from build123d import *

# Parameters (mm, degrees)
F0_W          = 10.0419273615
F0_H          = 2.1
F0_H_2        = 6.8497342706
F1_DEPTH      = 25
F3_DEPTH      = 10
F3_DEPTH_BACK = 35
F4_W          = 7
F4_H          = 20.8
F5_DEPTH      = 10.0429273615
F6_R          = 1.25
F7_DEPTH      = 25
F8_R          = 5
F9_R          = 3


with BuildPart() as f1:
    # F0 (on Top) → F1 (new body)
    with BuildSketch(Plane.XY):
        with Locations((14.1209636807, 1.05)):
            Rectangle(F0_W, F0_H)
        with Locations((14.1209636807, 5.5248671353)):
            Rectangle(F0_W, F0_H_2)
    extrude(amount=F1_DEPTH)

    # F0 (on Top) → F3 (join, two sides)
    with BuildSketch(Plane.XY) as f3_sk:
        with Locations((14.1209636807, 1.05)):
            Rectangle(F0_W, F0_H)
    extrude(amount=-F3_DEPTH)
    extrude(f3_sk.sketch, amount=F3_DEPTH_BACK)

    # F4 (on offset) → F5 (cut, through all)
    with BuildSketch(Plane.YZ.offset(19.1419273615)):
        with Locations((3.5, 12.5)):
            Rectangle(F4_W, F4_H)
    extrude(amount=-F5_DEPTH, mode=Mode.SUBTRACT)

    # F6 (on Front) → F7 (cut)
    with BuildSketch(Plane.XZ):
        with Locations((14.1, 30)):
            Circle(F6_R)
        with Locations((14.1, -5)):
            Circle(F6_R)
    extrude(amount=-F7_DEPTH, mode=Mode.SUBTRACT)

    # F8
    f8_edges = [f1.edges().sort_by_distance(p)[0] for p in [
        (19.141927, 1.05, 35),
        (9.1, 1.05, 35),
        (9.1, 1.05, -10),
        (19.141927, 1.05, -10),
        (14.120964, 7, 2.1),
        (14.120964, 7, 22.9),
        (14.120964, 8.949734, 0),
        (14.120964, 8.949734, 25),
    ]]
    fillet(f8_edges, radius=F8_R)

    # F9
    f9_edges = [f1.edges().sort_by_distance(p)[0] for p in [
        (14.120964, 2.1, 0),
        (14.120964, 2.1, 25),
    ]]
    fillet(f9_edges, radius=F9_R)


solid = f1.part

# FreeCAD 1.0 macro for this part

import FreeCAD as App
import Part
import Sketcher

V = App.Vector


def edges_at(feature, points):
    """Names of the edges that pass closest to the given points."""
    edges = feature.Shape.Edges
    near = lambda p: min(range(len(edges)), key=lambda i: edges[i].distToShape(Part.Vertex(*p))[0])
    return sorted({f"Edge{near(p) + 1}" for p in points})


def add_polygon(sketch, points):
    """Adds a closed chain of lines whose ends are joined by coincident constraints."""
    first, n = sketch.GeometryCount, len(points)
    for a, b in zip(points, points[1:] + points[:1]):
        sketch.addGeometry(Part.LineSegment(App.Vector(*a, 0), App.Vector(*b, 0)), False)
    for i in range(n):
        sketch.addConstraint(Sketcher.Constraint("Coincident", first + i, 2, first + (i + 1) % n, 1))

doc = App.newDocument("Part")
body = doc.addObject("PartDesign::Body", "Body")

sketch1 = doc.addObject("Sketcher::SketchObject", "Sketch")
body.addObject(sketch1)
sketch1.AttachmentSupport = (doc.XY_Plane, [""])
sketch1.MapMode = "FlatFace"
add_polygon(sketch1, [(9, 0), (19, 0), (19, 9), (9, 9)])
sketch1.addConstraint(Sketcher.Constraint("Horizontal", 0))
sketch1.addConstraint(Sketcher.Constraint("Vertical", 1))
sketch1.addConstraint(Sketcher.Constraint("Horizontal", 2))
sketch1.addConstraint(Sketcher.Constraint("Vertical", 3))
sketch1.addConstraint(Sketcher.Constraint("PointOnObject", 0, 2, -1))
sketch1.addConstraint(Sketcher.Constraint("DistanceX", -1, 1, 2, 2, 9.1))
sketch1.addConstraint(Sketcher.Constraint("DistanceX", 0, 1, 0, 2, 10.041927))
sketch1.addConstraint(Sketcher.Constraint("DistanceY", 1, 1, 1, 2, 8.949734))
pad1 = doc.addObject("PartDesign::Pad", "Pad")
body.addObject(pad1)
pad1.Profile = sketch1
pad1.Length = 25

sketch2 = doc.addObject("Sketcher::SketchObject", "Sketch001")
body.addObject(sketch2)
sketch2.AttachmentSupport = (doc.XY_Plane, [""])
sketch2.MapMode = "FlatFace"
add_polygon(sketch2, [(9.1, 2.1), (9.1, 0), (19.1, 0), (19.1, 2.1)])
sketch2.addConstraint(Sketcher.Constraint("Vertical", 0))
sketch2.addConstraint(Sketcher.Constraint("Horizontal", 1))
sketch2.addConstraint(Sketcher.Constraint("Vertical", 2))
sketch2.addConstraint(Sketcher.Constraint("Horizontal", 3))
sketch2.addConstraint(Sketcher.Constraint("PointOnObject", 0, 2, -1))
sketch2.addConstraint(Sketcher.Constraint("DistanceY", 0, 2, 0, 1, 2.1))
sketch2.addConstraint(Sketcher.Constraint("DistanceX", -1, 1, 0, 2, 9.1))
sketch2.addConstraint(Sketcher.Constraint("DistanceX", 1, 1, 1, 2, 10.041927))
pad2 = doc.addObject("PartDesign::Pad", "Pad001")
body.addObject(pad2)
pad2.Profile = sketch2
pad2.Type = "TwoLengths"
pad2.Length = 10
pad2.Length2 = 35
pad2.Reversed = True

sketch3 = doc.addObject("Sketcher::SketchObject", "Sketch002")
body.addObject(sketch3)
sketch3.AttachmentSupport = (doc.YZ_Plane, [""])
sketch3.MapMode = "FlatFace"
sketch3.AttachmentOffset = App.Placement(V(0, 0, 19.141927), App.Rotation())
add_polygon(sketch3, [(0, 23), (0, 2), (7, 2), (7, 23)])
sketch3.addConstraint(Sketcher.Constraint("Vertical", 0))
sketch3.addConstraint(Sketcher.Constraint("Horizontal", 1))
sketch3.addConstraint(Sketcher.Constraint("Vertical", 2))
sketch3.addConstraint(Sketcher.Constraint("Horizontal", 3))
sketch3.addConstraint(Sketcher.Constraint("PointOnObject", 0, 2, -2))
sketch3.addConstraint(Sketcher.Constraint("DistanceX", 1, 1, 1, 2, 7.0))
sketch3.addConstraint(Sketcher.Constraint("DistanceY", 0, 2, 0, 1, 20.8))
sketch3.addConstraint(Sketcher.Constraint("DistanceY", -1, 1, 0, 2, 2.1))
pocket1 = doc.addObject("PartDesign::Pocket", "Pocket")
body.addObject(pocket1)
pocket1.Profile = sketch3
pocket1.Type = "ThroughAll"

sketch4 = doc.addObject("Sketcher::SketchObject", "Sketch003")
body.addObject(sketch4)
sketch4.AttachmentSupport = (doc.XZ_Plane, [""])
sketch4.MapMode = "FlatFace"
sketch4.addGeometry(Part.Circle(V(14.1, 30, 0), V(0, 0, 1), 1.2), False)
sketch4.addGeometry(Part.Circle(V(14.1, -5, 0), V(0, 0, 1), 1.2), False)
sketch4.addConstraint(Sketcher.Constraint("Equal", 0, 1))
sketch4.addConstraint(Sketcher.Constraint("Vertical", 0, 3, 1, 3))
sketch4.addConstraint(Sketcher.Constraint("Diameter", 0, 2.5))
sketch4.addConstraint(Sketcher.Constraint("DistanceY", -1, 1, 0, 3, 30.0))
sketch4.addConstraint(Sketcher.Constraint("DistanceY", 1, 3, -1, 1, 5.0))
sketch4.addConstraint(Sketcher.Constraint("DistanceX", -1, 1, 0, 3, 14.1))
pocket2 = doc.addObject("PartDesign::Pocket", "Pocket001")
body.addObject(pocket2)
pocket2.Profile = sketch4
pocket2.Length = 25
doc.recompute()

fillet = doc.addObject("PartDesign::Fillet", "Fillet")
body.addObject(fillet)
fillet.Base = (pocket2, edges_at(pocket2, [
    (19.142, 1.05, 35),
    (9.1, 1.05, 35),
    (9.1, 1.05, -10),
    (19.142, 1.05, -10),
    (14.121, 7, 2.1),
    (14.121, 7, 22.9),
    (14.121, 8.95, 0),
    (14.121, 8.95, 25),
]))
fillet.Radius = 5
doc.recompute()

fillet2 = doc.addObject("PartDesign::Fillet", "Fillet001")
body.addObject(fillet2)
fillet2.Base = (fillet, edges_at(fillet, [(14.121, 2.1, 0), (14.121, 2.1, 25)]))
fillet2.Radius = 3

doc.recompute()
